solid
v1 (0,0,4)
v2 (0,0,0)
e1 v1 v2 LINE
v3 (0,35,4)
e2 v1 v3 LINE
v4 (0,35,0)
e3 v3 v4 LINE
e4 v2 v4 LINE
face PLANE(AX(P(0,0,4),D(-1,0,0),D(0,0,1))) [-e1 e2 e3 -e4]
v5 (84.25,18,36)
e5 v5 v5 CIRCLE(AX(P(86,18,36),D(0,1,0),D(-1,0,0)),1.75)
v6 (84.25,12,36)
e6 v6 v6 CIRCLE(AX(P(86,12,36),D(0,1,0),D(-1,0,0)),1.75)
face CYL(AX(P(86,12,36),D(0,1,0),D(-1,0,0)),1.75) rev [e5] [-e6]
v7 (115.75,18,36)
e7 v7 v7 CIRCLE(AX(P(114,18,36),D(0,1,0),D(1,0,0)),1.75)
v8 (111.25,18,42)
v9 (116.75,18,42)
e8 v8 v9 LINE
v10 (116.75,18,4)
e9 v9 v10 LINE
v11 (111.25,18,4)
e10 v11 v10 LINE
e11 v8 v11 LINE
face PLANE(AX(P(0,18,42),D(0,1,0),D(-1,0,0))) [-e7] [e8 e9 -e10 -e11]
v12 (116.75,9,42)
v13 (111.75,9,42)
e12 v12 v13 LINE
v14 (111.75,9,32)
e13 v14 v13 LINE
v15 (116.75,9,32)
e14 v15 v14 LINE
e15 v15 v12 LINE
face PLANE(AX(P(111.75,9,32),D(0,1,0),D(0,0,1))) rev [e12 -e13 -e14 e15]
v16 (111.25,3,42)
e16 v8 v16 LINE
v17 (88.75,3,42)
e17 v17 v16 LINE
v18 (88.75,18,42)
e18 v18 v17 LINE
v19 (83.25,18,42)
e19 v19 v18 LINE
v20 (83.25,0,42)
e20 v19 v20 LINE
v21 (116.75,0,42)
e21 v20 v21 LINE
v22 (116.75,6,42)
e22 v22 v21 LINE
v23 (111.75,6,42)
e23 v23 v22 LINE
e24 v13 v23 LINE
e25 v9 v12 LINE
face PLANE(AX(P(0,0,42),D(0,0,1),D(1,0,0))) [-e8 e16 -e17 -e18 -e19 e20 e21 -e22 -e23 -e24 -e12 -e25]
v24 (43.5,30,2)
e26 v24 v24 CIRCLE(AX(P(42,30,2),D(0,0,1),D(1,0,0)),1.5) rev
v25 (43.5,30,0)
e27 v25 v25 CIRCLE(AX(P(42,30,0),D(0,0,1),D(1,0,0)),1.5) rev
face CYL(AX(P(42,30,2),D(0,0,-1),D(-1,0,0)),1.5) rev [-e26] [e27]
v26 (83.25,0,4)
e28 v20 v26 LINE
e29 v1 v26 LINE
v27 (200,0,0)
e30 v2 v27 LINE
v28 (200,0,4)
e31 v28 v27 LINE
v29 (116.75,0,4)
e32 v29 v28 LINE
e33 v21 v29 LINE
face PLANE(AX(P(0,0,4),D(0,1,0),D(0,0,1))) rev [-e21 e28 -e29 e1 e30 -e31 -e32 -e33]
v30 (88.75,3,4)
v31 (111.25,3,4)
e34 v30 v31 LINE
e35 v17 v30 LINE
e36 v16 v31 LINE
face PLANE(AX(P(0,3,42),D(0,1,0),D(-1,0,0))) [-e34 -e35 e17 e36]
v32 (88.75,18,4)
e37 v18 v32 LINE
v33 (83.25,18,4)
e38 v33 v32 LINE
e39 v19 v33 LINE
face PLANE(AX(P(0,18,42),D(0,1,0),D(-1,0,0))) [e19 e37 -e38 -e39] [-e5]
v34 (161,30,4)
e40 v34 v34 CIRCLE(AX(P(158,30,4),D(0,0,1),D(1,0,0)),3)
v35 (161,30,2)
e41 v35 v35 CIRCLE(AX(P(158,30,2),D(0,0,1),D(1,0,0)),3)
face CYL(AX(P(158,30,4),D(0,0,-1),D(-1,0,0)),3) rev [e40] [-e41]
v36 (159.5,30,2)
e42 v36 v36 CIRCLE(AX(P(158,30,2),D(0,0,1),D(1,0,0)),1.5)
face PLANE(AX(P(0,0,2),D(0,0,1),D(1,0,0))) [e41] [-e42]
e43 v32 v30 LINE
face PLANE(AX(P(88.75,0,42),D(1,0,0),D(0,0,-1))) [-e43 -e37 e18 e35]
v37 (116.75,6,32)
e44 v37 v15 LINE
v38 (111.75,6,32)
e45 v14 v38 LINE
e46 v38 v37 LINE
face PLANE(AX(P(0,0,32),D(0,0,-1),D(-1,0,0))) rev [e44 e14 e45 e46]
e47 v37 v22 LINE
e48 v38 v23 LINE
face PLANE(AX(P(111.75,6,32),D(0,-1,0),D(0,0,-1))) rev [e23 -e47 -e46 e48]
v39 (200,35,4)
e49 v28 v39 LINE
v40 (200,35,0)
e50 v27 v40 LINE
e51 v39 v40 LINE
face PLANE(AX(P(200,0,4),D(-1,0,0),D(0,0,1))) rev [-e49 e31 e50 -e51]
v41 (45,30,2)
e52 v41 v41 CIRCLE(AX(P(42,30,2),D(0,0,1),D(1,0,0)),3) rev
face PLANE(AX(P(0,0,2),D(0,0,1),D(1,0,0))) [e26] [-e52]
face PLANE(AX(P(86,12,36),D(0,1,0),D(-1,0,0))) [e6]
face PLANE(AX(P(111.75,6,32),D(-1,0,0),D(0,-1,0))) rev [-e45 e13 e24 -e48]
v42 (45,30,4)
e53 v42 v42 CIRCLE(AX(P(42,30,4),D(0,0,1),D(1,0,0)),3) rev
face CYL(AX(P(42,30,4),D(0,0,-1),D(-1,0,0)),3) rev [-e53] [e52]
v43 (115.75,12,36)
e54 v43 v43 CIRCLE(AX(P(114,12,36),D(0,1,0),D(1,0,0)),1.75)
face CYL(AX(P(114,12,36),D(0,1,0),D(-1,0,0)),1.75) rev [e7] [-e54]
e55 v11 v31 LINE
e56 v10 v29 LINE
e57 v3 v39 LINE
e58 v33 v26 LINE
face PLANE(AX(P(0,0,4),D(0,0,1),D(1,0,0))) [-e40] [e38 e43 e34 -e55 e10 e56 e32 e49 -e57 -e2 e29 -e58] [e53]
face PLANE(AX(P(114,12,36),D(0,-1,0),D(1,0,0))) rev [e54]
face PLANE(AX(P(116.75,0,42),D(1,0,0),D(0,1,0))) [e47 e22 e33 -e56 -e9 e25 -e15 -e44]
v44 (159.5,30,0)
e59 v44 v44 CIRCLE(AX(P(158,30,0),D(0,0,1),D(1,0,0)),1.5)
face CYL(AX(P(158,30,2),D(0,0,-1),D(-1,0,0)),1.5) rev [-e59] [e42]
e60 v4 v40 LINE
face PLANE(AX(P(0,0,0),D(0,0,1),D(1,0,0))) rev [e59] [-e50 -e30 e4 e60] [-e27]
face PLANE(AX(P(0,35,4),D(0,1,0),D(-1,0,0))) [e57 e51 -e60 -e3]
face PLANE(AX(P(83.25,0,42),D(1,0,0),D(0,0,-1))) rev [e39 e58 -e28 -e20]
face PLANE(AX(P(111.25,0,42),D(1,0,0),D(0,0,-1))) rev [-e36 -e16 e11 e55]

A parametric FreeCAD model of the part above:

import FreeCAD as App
import Part
import Sketcher
Q = App.Units.Quantity

doc = App.newDocument("Part")
body = doc.addObject("PartDesign::Body", "Body")

sketch1 = body.newObject("Sketcher::SketchObject", "Sketch")
sketch1.AttachmentSupport = (doc.getObject("XY_Plane"), [""])
sketch1.MapMode = "FlatFace"
sketch1.addGeometry(Part.LineSegment(App.Vector(0, 35, 0), App.Vector(0, 0, 0)), False)
sketch1.addGeometry(Part.LineSegment(App.Vector(0, 0, 0), App.Vector(200, 0, 0)), False)
sketch1.addGeometry(Part.LineSegment(App.Vector(200, 0, 0), App.Vector(200, 35, 0)), False)
sketch1.addGeometry(Part.LineSegment(App.Vector(200, 35, 0), App.Vector(0, 35, 0)), False)
sketch1.addGeometry(Part.Circle(App.Vector(42, 30, 0), App.Vector(0, 0, 1), 3), False)
sketch1.addGeometry(Part.Circle(App.Vector(158, 30, 0), App.Vector(0, 0, 1), 3), False)
sketch1.addConstraint(Sketcher.Constraint("Coincident", 0, 2, 1, 1))
sketch1.addConstraint(Sketcher.Constraint("Coincident", 1, 2, 2, 1))
sketch1.addConstraint(Sketcher.Constraint("Coincident", 2, 2, 3, 1))
sketch1.addConstraint(Sketcher.Constraint("Coincident", 3, 2, 0, 1))
sketch1.addConstraint(Sketcher.Constraint("Vertical", 0))
sketch1.addConstraint(Sketcher.Constraint("Horizontal", 1))
sketch1.addConstraint(Sketcher.Constraint("Vertical", 2))
sketch1.addConstraint(Sketcher.Constraint("Horizontal", 3))
sketch1.addConstraint(Sketcher.Constraint("Coincident", 0, 2, -1, 1))
sketch1.addConstraint(Sketcher.Constraint("Equal", 4, 5))
sketch1.addConstraint(Sketcher.Constraint("Horizontal", 4, 3, 5, 3))
sketch1.addConstraint(Sketcher.Constraint("Diameter", 4, Q("6 mm")))
sketch1.addConstraint(Sketcher.Constraint("DistanceX", 1, 1, 1, 2, Q("200 mm")))
sketch1.addConstraint(Sketcher.Constraint("DistanceY", 0, 2, 0, 1, Q("35 mm")))
sketch1.addConstraint(Sketcher.Constraint("DistanceX", -1, 1, 4, 3, Q("42 mm")))
sketch1.addConstraint(Sketcher.Constraint("DistanceY", -1, 1, 4, 3, Q("30 mm")))
sketch1.addConstraint(Sketcher.Constraint("DistanceX", -1, 1, 5, 3, Q("158 mm")))
pad1 = body.newObject("PartDesign::Pad", "Pad")
pad1.Profile = sketch1
pad1.Length = 4

sketch2 = body.newObject("Sketcher::SketchObject", "Sketch001")
sketch2.AttachmentSupport = (doc.getObject("XY_Plane"), [""])
sketch2.MapMode = "FlatFace"
sketch2.addGeometry(Part.Circle(App.Vector(42, 30, 0), App.Vector(0, 0, 1), 3), False)
sketch2.addGeometry(Part.Circle(App.Vector(42, 30, 0), App.Vector(0, 0, 1), 1.5), False)
sketch2.addGeometry(Part.Circle(App.Vector(158, 30, 0), App.Vector(0, 0, 1), 3), False)
sketch2.addGeometry(Part.Circle(App.Vector(158, 30, 0), App.Vector(0, 0, 1), 1.5), False)
sketch2.addConstraint(Sketcher.Constraint("Coincident", 1, 3, 0, 3))
sketch2.addConstraint(Sketcher.Constraint("Coincident", 3, 3, 2, 3))
sketch2.addConstraint(Sketcher.Constraint("Equal", 0, 2))
sketch2.addConstraint(Sketcher.Constraint("Equal", 1, 3))
sketch2.addConstraint(Sketcher.Constraint("Horizontal", 1, 3, 2, 3))
sketch2.addConstraint(Sketcher.Constraint("Diameter", 0, Q("6 mm")))
sketch2.addConstraint(Sketcher.Constraint("Diameter", 1, Q("3 mm")))
sketch2.addConstraint(Sketcher.Constraint("DistanceX", -1, 1, 0, 3, Q("42 mm")))
sketch2.addConstraint(Sketcher.Constraint("DistanceY", -1, 1, 0, 3, Q("30 mm")))
sketch2.addConstraint(Sketcher.Constraint("DistanceX", -1, 1, 2, 3, Q("158 mm")))
pad2 = body.newObject("PartDesign::Pad", "Pad001")
pad2.Profile = sketch2
pad2.Length = 2

sketch3 = body.newObject("Sketcher::SketchObject", "Sketch002")
sketch3.AttachmentSupport = (doc.getObject("XY_Plane"), [""])
sketch3.MapMode = "FlatFace"
sketch3.AttachmentOffset = App.Placement(App.Vector(0, 0, 4), App.Rotation())
sketch3.addGeometry(Part.LineSegment(App.Vector(88.75, 18, 0), App.Vector(83.25, 18, 0)), False)
sketch3.addGeometry(Part.LineSegment(App.Vector(83.25, 18, 0), App.Vector(83.25, 0, 0)), False)
sketch3.addGeometry(Part.LineSegment(App.Vector(83.25, 0, 0), App.Vector(116.75, 0, 0)), False)
sketch3.addGeometry(Part.LineSegment(App.Vector(116.75, 0, 0), App.Vector(116.75, 18, 0)), False)
sketch3.addGeometry(Part.LineSegment(App.Vector(116.75, 18, 0), App.Vector(111.25, 18, 0)), False)
sketch3.addGeometry(Part.LineSegment(App.Vector(111.25, 18, 0), App.Vector(111.25, 3, 0)), False)
sketch3.addGeometry(Part.LineSegment(App.Vector(111.25, 3, 0), App.Vector(88.75, 3, 0)), False)
sketch3.addGeometry(Part.LineSegment(App.Vector(88.75, 3, 0), App.Vector(88.75, 18, 0)), False)
sketch3.addConstraint(Sketcher.Constraint("Coincident", 0, 2, 1, 1))
sketch3.addConstraint(Sketcher.Constraint("Coincident", 1, 2, 2, 1))
sketch3.addConstraint(Sketcher.Constraint("Coincident", 2, 2, 3, 1))
sketch3.addConstraint(Sketcher.Constraint("Coincident", 3, 2, 4, 1))
sketch3.addConstraint(Sketcher.Constraint("Coincident", 4, 2, 5, 1))
sketch3.addConstraint(Sketcher.Constraint("Coincident", 5, 2, 6, 1))
sketch3.addConstraint(Sketcher.Constraint("Coincident", 6, 2, 7, 1))
sketch3.addConstraint(Sketcher.Constraint("Coincident", 7, 2, 0, 1))
sketch3.addConstraint(Sketcher.Constraint("Horizontal", 0))
sketch3.addConstraint(Sketcher.Constraint("Vertical", 1))
sketch3.addConstraint(Sketcher.Constraint("Horizontal", 2))
sketch3.addConstraint(Sketcher.Constraint("Vertical", 3))
sketch3.addConstraint(Sketcher.Constraint("Horizontal", 4))
sketch3.addConstraint(Sketcher.Constraint("Vertical", 5))
sketch3.addConstraint(Sketcher.Constraint("Horizontal", 6))
sketch3.addConstraint(Sketcher.Constraint("Vertical", 7))
sketch3.addConstraint(Sketcher.Constraint("PointOnObject", 1, 2, -1))
sketch3.addConstraint(Sketcher.Constraint("Horizontal", 0, 2, 3, 2))
sketch3.addConstraint(Sketcher.Constraint("Equal", 0, 4))
sketch3.addConstraint(Sketcher.Constraint("DistanceY", 1, 2, 1, 1, Q("18 mm")))
sketch3.addConstraint(Sketcher.Constraint("DistanceY", 5, 2, 5, 1, Q("15 mm")))
sketch3.addConstraint(Sketcher.Constraint("DistanceX", 0, 2, 0, 1, Q("5.5 mm")))
sketch3.addConstraint(Sketcher.Constraint("DistanceX", 2, 1, 2, 2, Q("33.5 mm")))
sketch3.addConstraint(Sketcher.Constraint("DistanceX", -1, 1, 0, 2, Q("83.25 mm")))
pad3 = body.newObject("PartDesign::Pad", "Pad002")
pad3.Profile = sketch3
pad3.Length = 38

sketch4 = body.newObject("Sketcher::SketchObject", "Sketch003")
sketch4.AttachmentSupport = (doc.getObject("XY_Plane"), [""])
sketch4.MapMode = "FlatFace"
sketch4.AttachmentOffset = App.Placement(App.Vector(0, 0, 42), App.Rotation())
sketch4.addGeometry(Part.LineSegment(App.Vector(111.75, 9, 0), App.Vector(111.75, 6, 0)), False)
sketch4.addGeometry(Part.LineSegment(App.Vector(111.75, 6, 0), App.Vector(116.75, 6, 0)), False)
sketch4.addGeometry(Part.LineSegment(App.Vector(116.75, 6, 0), App.Vector(116.75, 9, 0)), False)
sketch4.addGeometry(Part.LineSegment(App.Vector(116.75, 9, 0), App.Vector(111.75, 9, 0)), False)
sketch4.addConstraint(Sketcher.Constraint("Coincident", 0, 2, 1, 1))
sketch4.addConstraint(Sketcher.Constraint("Coincident", 1, 2, 2, 1))
sketch4.addConstraint(Sketcher.Constraint("Coincident", 2, 2, 3, 1))
sketch4.addConstraint(Sketcher.Constraint("Coincident", 3, 2, 0, 1))
sketch4.addConstraint(Sketcher.Constraint("Vertical", 0))
sketch4.addConstraint(Sketcher.Constraint("Horizontal", 1))
sketch4.addConstraint(Sketcher.Constraint("Vertical", 2))
sketch4.addConstraint(Sketcher.Constraint("Horizontal", 3))
sketch4.addConstraint(Sketcher.Constraint("DistanceX", 1, 1, 1, 2, Q("5 mm")))
sketch4.addConstraint(Sketcher.Constraint("DistanceY", 0, 2, 0, 1, Q("3 mm")))
sketch4.addConstraint(Sketcher.Constraint("DistanceY", -1, 1, 0, 2, Q("6 mm")))
sketch4.addConstraint(Sketcher.Constraint("DistanceX", -1, 1, 0, 2, Q("111.75 mm")))
pocket1 = body.newObject("PartDesign::Pocket", "Pocket")
pocket1.Profile = sketch4
pocket1.Length = 10

sketch5 = body.newObject("Sketcher::SketchObject", "Sketch004")
sketch5.AttachmentSupport = (doc.getObject("XZ_Plane"), [""])
sketch5.MapMode = "FlatFace"
sketch5.AttachmentOffset = App.Placement(App.Vector(0, 0, -18), App.Rotation())
sketch5.addGeometry(Part.Circle(App.Vector(86, 36, 0), App.Vector(0, 0, 1), 1.75), False)
sketch5.addGeometry(Part.Circle(App.Vector(114, 36, 0), App.Vector(0, 0, 1), 1.75), False)
sketch5.addConstraint(Sketcher.Constraint("Equal", 0, 1))
sketch5.addConstraint(Sketcher.Constraint("Horizontal", 0, 3, 1, 3))
sketch5.addConstraint(Sketcher.Constraint("Diameter", 0, Q("3.5 mm")))
sketch5.addConstraint(Sketcher.Constraint("DistanceX", -1, 1, 0, 3, Q("86 mm")))
sketch5.addConstraint(Sketcher.Constraint("DistanceY", -1, 1, 0, 3, Q("36 mm")))
sketch5.addConstraint(Sketcher.Constraint("DistanceX", -1, 1, 1, 3, Q("114 mm")))
pocket2 = body.newObject("PartDesign::Pocket", "Pocket001")
pocket2.Profile = sketch5
pocket2.Length = 6
pocket2.Reversed = True

doc.recompute()
